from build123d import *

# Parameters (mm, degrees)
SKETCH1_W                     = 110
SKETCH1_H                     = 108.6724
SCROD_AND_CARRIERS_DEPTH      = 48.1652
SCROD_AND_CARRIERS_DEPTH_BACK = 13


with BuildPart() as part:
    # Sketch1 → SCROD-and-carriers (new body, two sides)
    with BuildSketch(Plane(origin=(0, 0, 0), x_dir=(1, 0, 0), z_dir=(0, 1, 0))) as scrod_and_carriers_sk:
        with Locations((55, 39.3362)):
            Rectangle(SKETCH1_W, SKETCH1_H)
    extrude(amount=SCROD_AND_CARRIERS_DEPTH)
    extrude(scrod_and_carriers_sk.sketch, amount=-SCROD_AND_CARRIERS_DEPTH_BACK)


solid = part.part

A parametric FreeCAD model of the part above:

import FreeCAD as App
import Part
import Sketcher
from FreeCAD import Vector
Q = App.Units.Quantity

doc = App.newDocument("Part")
body = doc.addObject("PartDesign::Body", "Body")

# Sketch on XZ plane
sketch1 = body.newObject("Sketcher::SketchObject", "Sketch")
sketch1.AttachmentSupport = (doc.getObject("XZ_Plane"), [""])
sketch1.MapMode = "FlatFace"
sketch1.addGeometry(Part.LineSegment(Vector(0, -94, 0), Vector(0, 15, 0)), False)
sketch1.addGeometry(Part.LineSegment(Vector(0, 15, 0), Vector(110, 15, 0)), False)
sketch1.addGeometry(Part.LineSegment(Vector(110, 15, 0), Vector(110, -94, 0)), False)
sketch1.addGeometry(Part.LineSegment(Vector(110, -94, 0), Vector(0, -94, 0)), False)
sketch1.addConstraint(Sketcher.Constraint("Coincident", 0, 2, 1, 1))
sketch1.addConstraint(Sketcher.Constraint("Coincident", 1, 2, 2, 1))
sketch1.addConstraint(Sketcher.Constraint("Coincident", 2, 2, 3, 1))
sketch1.addConstraint(Sketcher.Constraint("Coincident", 3, 2, 0, 1))
sketch1.addConstraint(Sketcher.Constraint("Vertical", 0))
sketch1.addConstraint(Sketcher.Constraint("Horizontal", 1))
sketch1.addConstraint(Sketcher.Constraint("Vertical", 2))
sketch1.addConstraint(Sketcher.Constraint("Horizontal", 3))
sketch1.addConstraint(Sketcher.Constraint("PointOnObject", 0, 2, -2))
sketch1.addConstraint(Sketcher.Constraint("DistanceX", 1, 1, 1, 2, Q("110 mm")))
sketch1.addConstraint(Sketcher.Constraint("DistanceY", -1, 1, 0, 2, Q("15 mm")))
sketch1.addConstraint(Sketcher.Constraint("DistanceY", 0, 1, 0, 2, Q("108.6724 mm")))
pad1 = body.newObject("PartDesign::Pad", "Pad")
pad1.Profile = sketch1
pad1.Type = "TwoLengths"
pad1.Length = 48.1652
pad1.Length2 = 13
pad1.Reversed = True

doc.recompute()
